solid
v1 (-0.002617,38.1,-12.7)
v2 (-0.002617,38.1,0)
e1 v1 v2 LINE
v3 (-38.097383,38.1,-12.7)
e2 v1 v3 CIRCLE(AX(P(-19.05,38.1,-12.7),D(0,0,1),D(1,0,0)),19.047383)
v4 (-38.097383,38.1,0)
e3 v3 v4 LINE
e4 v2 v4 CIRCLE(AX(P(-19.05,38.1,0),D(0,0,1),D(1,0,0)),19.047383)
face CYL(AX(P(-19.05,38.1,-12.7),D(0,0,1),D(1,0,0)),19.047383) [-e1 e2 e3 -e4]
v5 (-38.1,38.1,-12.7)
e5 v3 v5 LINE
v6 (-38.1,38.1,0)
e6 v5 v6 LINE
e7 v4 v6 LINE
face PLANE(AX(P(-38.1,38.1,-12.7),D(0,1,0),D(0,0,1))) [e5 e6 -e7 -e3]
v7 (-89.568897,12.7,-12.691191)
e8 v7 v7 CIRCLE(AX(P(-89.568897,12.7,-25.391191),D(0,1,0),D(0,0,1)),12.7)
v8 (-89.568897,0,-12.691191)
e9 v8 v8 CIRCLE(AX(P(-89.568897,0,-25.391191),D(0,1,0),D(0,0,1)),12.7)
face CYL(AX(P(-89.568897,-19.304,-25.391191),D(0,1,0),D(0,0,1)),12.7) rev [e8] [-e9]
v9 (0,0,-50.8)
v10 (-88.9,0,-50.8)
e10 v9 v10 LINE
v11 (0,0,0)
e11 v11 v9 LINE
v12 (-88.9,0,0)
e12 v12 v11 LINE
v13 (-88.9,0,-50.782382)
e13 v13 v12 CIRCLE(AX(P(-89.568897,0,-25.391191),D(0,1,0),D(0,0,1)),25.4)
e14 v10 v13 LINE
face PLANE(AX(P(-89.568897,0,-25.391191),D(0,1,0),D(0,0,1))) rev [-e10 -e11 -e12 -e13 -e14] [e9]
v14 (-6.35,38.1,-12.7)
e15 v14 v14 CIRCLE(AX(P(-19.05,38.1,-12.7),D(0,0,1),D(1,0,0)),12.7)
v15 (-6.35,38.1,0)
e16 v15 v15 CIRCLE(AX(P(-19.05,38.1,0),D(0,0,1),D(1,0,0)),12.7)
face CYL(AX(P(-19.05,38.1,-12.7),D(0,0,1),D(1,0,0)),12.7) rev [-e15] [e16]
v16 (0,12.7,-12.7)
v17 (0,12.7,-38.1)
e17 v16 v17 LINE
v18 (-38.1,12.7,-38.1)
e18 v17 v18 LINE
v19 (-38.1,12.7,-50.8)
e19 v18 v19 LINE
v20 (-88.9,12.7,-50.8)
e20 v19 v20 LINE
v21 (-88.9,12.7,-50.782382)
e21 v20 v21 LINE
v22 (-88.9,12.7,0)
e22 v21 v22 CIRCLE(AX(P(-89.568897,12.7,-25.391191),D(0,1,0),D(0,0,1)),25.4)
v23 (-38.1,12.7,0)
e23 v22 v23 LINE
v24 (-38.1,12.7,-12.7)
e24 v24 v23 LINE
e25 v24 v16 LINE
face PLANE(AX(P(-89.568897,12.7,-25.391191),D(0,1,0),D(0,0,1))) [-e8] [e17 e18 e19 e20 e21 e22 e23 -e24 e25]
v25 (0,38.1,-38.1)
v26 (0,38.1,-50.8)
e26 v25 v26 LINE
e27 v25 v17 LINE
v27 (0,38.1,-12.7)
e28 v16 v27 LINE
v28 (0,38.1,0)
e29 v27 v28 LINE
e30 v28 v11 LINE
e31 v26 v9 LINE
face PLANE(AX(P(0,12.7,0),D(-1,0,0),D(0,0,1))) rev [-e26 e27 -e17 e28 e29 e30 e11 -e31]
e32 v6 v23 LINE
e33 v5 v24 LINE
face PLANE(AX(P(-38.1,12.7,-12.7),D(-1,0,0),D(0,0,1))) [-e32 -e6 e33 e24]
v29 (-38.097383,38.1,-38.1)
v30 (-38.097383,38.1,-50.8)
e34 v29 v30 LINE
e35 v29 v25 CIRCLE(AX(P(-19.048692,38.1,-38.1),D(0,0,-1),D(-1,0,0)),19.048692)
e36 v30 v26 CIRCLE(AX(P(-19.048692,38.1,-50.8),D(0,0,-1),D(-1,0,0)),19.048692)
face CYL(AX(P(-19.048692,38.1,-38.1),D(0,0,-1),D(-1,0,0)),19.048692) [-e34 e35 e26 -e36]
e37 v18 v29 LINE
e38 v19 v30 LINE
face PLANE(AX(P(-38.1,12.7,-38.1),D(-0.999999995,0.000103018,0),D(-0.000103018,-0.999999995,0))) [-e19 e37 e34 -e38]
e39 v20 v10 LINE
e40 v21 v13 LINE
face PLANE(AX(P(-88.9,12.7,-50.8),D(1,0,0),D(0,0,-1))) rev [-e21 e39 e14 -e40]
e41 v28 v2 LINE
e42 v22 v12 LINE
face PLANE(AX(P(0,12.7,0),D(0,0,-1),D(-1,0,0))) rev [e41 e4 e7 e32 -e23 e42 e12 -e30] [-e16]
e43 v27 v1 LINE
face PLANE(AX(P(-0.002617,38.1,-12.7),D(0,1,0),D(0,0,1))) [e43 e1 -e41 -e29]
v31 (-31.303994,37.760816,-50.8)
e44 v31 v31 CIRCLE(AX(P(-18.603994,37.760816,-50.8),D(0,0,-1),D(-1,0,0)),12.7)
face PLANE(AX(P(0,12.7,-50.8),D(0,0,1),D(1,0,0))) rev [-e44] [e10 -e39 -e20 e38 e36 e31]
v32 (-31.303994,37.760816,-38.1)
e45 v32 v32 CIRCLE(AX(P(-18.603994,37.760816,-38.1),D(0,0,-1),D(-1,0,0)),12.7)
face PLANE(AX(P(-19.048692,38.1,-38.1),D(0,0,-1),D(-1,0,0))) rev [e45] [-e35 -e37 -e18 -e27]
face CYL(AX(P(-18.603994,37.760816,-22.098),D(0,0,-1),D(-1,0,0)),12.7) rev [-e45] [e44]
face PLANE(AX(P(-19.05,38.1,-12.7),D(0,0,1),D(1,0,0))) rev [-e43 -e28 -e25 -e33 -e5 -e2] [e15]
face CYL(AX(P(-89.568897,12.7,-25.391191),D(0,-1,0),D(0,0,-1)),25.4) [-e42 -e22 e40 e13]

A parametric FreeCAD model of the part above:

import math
import FreeCAD as App
import Part
import Sketcher

V = App.Vector
Q = App.Units.Quantity

doc = App.newDocument("Part")
params = doc.addObject("Spreadsheet::Sheet", "Params")
for row, (alias, value) in enumerate([
    ("sketch1_radius", "1 in"),
    ("sketch1_height", "2 in"),
    ("sketch1_width", "3.5 in"),
    ("pad1_length", "0.5 in"),
    ("sketch2_height", "1 in"),
    ("sketch2_width", "1.5 in"),
    ("pad2_length", "0.5 in"),
    ("sketch3_diameter", "1 in"),
    ("pocket1_length", "0.5 in"),
    ("sketch4_height", "1 in"),
    ("sketch4_width", "1.5 in"),
    ("pad3_length", "0.5 in"),
    ("sketch5_diameter", "1 in"),
    ("pocket2_length", "1.13 in"),
    ("sketch6_diameter", "1 in"),
    ("pocket3_length", "1.26 in"),
], start=1):
    params.set(f"A{row}", alias)
    params.set(f"B{row}", "=" + value)
    params.setAlias(f"B{row}", alias)

body = doc.addObject("PartDesign::Body", "Body")

sketch1 = doc.addObject("Sketcher::SketchObject", "Sketch")
body.addObject(sketch1)
sketch1.AttachmentSupport = (doc.XZ_Plane, [""])
sketch1.MapMode = "FlatFace"
sketch1.addGeometry(Part.LineSegment(V(0, 0, 0), V(0, -50.8, 0)), False)
sketch1.addGeometry(Part.LineSegment(V(0, -50.8, 0), V(-88.9, -50.8, 0)), False)
sketch1.addGeometry(Part.LineSegment(V(-88.9, -50.8, 0), V(-88.9, -50.782382, 0)), False)
sketch1.addGeometry(Part.ArcOfCircle(Part.Circle(V(-89.568897, -25.391191, 0), V(0, 0, 1), 25.4), math.radians(88.490969), math.radians(271.509031)), False)
sketch1.addGeometry(Part.LineSegment(V(-88.9, 0, 0), V(0, 0, 0)), False)
sketch1.addConstraint(Sketcher.Constraint("Coincident", 0, 2, 1, 1))
sketch1.addConstraint(Sketcher.Constraint("Coincident", 1, 2, 2, 1))
sketch1.addConstraint(Sketcher.Constraint("Coincident", 2, 2, 3, 2))
sketch1.addConstraint(Sketcher.Constraint("Coincident", 3, 1, 4, 1))
sketch1.addConstraint(Sketcher.Constraint("Coincident", 4, 2, 0, 1))
sketch1.addConstraint(Sketcher.Constraint("Vertical", 0))
sketch1.addConstraint(Sketcher.Constraint("Horizontal", 1))
sketch1.addConstraint(Sketcher.Constraint("Vertical", 2))
sketch1.addConstraint(Sketcher.Constraint("Horizontal", 4))
sketch1.addConstraint(Sketcher.Constraint("Coincident", 4, 2, -1, 1))
sketch1.addConstraint(Sketcher.Constraint("Vertical", 2, 2, 3, 1))
sketch1.addConstraint(Sketcher.Constraint("Radius", 3, Q("1 in")))
sketch1.addConstraint(Sketcher.Constraint("DistanceY", 0, 2, 0, 1, Q("2 in")))
sketch1.addConstraint(Sketcher.Constraint("DistanceX", 1, 2, 1, 1, Q("3.5 in")))
sketch1.addConstraint(Sketcher.Constraint("DistanceY", 2, 1, 2, 2, 0.017618))
sketch1.setExpression("Constraints[11]", "Params.sketch1_radius")
sketch1.setExpression("Constraints[12]", "Params.sketch1_height")
sketch1.setExpression("Constraints[13]", "Params.sketch1_width")
pad1 = doc.addObject("PartDesign::Pad", "Pad")
body.addObject(pad1)
pad1.Profile = sketch1
pad1.setExpression("Length", "Params.pad1_length")
pad1.Reversed = True

sketch2 = doc.addObject("Sketcher::SketchObject", "Sketch001")
body.addObject(sketch2)
sketch2.AttachmentSupport = (doc.XY_Plane, [""])
sketch2.MapMode = "FlatFace"
sketch2.addGeometry(Part.LineSegment(V(0, 12.7, 0), V(0, 38.1, 0)), False)
sketch2.addGeometry(Part.LineSegment(V(0, 38.1, 0), V(-0.002617, 38.1, 0)), False)
sketch2.addGeometry(Part.ArcOfCircle(Part.Circle(V(-19.05, 38.1, 0), V(0, 0, 1), 19.047383), math.radians(0), math.radians(180)), False)
sketch2.addGeometry(Part.LineSegment(V(-38.097383, 38.1, 0), V(-38.1, 38.1, 0)), False)
sketch2.addGeometry(Part.LineSegment(V(-38.1, 38.1, 0), V(-38.1, 12.7, 0)), False)
sketch2.addGeometry(Part.LineSegment(V(-38.1, 12.7, 0), V(0, 12.7, 0)), False)
sketch2.addConstraint(Sketcher.Constraint("Coincident", 0, 2, 1, 1))
sketch2.addConstraint(Sketcher.Constraint("Coincident", 1, 2, 2, 1))
sketch2.addConstraint(Sketcher.Constraint("Coincident", 2, 2, 3, 1))
sketch2.addConstraint(Sketcher.Constraint("Coincident", 3, 2, 4, 1))
sketch2.addConstraint(Sketcher.Constraint("Coincident", 4, 2, 5, 1))
sketch2.addConstraint(Sketcher.Constraint("Coincident", 5, 2, 0, 1))
sketch2.addConstraint(Sketcher.Constraint("Vertical", 0))
sketch2.addConstraint(Sketcher.Constraint("Horizontal", 1))
sketch2.addConstraint(Sketcher.Constraint("Horizontal", 3))
sketch2.addConstraint(Sketcher.Constraint("Vertical", 4))
sketch2.addConstraint(Sketcher.Constraint("Horizontal", 5))
sketch2.addConstraint(Sketcher.Constraint("PointOnObject", 0, 2, -2))
sketch2.addConstraint(Sketcher.Constraint("Horizontal", 2, 3, 0, 2))
sketch2.addConstraint(Sketcher.Constraint("Horizontal", 1, 2, 2, 2))
sketch2.addConstraint(Sketcher.Constraint("Equal", 1, 3))
sketch2.addConstraint(Sketcher.Constraint("DistanceY", 0, 1, 0, 2, Q("1 in")))
sketch2.addConstraint(Sketcher.Constraint("DistanceX", 5, 1, 5, 2, Q("1.5 in")))
sketch2.addConstraint(Sketcher.Constraint("DistanceY", -1, 1, 2, 3, Q("1.5 in")))
sketch2.addConstraint(Sketcher.Constraint("Radius", 2, 19.047383))
sketch2.setExpression("Constraints[15]", "Params.sketch2_height")
sketch2.setExpression("Constraints[16]", "Params.sketch2_width")
pad2 = doc.addObject("PartDesign::Pad", "Pad001")
body.addObject(pad2)
pad2.Profile = sketch2
pad2.setExpression("Length", "Params.pad2_length")
pad2.Reversed = True

sketch3 = doc.addObject("Sketcher::SketchObject", "Sketch002")
body.addObject(sketch3)
sketch3.AttachmentSupport = (doc.XY_Plane, [""])
sketch3.MapMode = "FlatFace"
sketch3.addGeometry(Part.Circle(V(-19.05, 38.1, 0), V(0, 0, 1), 12.7), False)
sketch3.addConstraint(Sketcher.Constraint("Diameter", 0, Q("1 in")))
sketch3.addConstraint(Sketcher.Constraint("DistanceY", -1, 1, 0, 3, Q("1.5 in")))
sketch3.addConstraint(Sketcher.Constraint("DistanceX", 0, 3, -1, 1, Q("0.75 in")))
sketch3.setExpression("Constraints[0]", "Params.sketch3_diameter")
pocket1 = doc.addObject("PartDesign::Pocket", "Pocket")
body.addObject(pocket1)
pocket1.Profile = sketch3
pocket1.setExpression("Length", "Params.pocket1_length")

sketch4 = doc.addObject("Sketcher::SketchObject", "Sketch003")
body.addObject(sketch4)
sketch4.AttachmentSupport = (doc.XY_Plane, [""])
sketch4.MapMode = "FlatFace"
sketch4.AttachmentOffset = App.Placement(V(0, 0, -2 * 25.4), App.Rotation())
sketch4.addGeometry(Part.LineSegment(V(-38.1, 12.7, 0), V(-38.097383, 38.1, 0)), False)
sketch4.addGeometry(Part.ArcOfCircle(Part.Circle(V(-19.048692, 38.1, 0), V(0, 0, 1), 19.048692), math.radians(0), math.radians(180)), False)
sketch4.addGeometry(Part.LineSegment(V(0, 38.1, 0), V(0, 12.7, 0)), False)
sketch4.addGeometry(Part.LineSegment(V(0, 12.7, 0), V(-38.1, 12.7, 0)), False)
sketch4.addConstraint(Sketcher.Constraint("Coincident", 0, 2, 1, 2))
sketch4.addConstraint(Sketcher.Constraint("Tangent", 1, 1, 2, 1))
sketch4.addConstraint(Sketcher.Constraint("Coincident", 2, 2, 3, 1))
sketch4.addConstraint(Sketcher.Constraint("Coincident", 3, 2, 0, 1))
sketch4.addConstraint(Sketcher.Constraint("Vertical", 2))
sketch4.addConstraint(Sketcher.Constraint("Horizontal", 3))
sketch4.addConstraint(Sketcher.Constraint("PointOnObject", 1, 1, -2))
sketch4.addConstraint(Sketcher.Constraint("Horizontal", 1, 3, 0, 2))
sketch4.addConstraint(Sketcher.Constraint("DistanceY", 2, 2, 2, 1, Q("1 in")))
sketch4.addConstraint(Sketcher.Constraint("DistanceX", 3, 2, 3, 1, Q("1.5 in")))
sketch4.addConstraint(Sketcher.Constraint("DistanceY", -1, 1, 1, 3, Q("1.5 in")))
sketch4.addConstraint(Sketcher.Constraint("Radius", 1, 19.048692))
sketch4.setExpression("Constraints[8]", "Params.sketch4_height")
sketch4.setExpression("Constraints[9]", "Params.sketch4_width")
pad3 = doc.addObject("PartDesign::Pad", "Pad002")
body.addObject(pad3)
pad3.Profile = sketch4
pad3.setExpression("Length", "Params.pad3_length")

sketch5 = doc.addObject("Sketcher::SketchObject", "Sketch004")
body.addObject(sketch5)
sketch5.AttachmentSupport = (doc.XY_Plane, [""])
sketch5.MapMode = "FlatFace"
sketch5.AttachmentOffset = App.Placement(V(0, 0, -2 * 25.4), App.Rotation())
sketch5.addGeometry(Part.Circle(V(-18.603994, 37.760816, 0), V(0, 0, 1), 12.7), False)
sketch5.addConstraint(Sketcher.Constraint("Diameter", 0, Q("1 in")))
sketch5.addConstraint(Sketcher.Constraint("DistanceX", 0, 3, -1, 1, 18.603994))
sketch5.addConstraint(Sketcher.Constraint("DistanceY", -1, 1, 0, 3, 37.760816))
sketch5.setExpression("Constraints[0]", "Params.sketch5_diameter")
pocket2 = doc.addObject("PartDesign::Pocket", "Pocket001")
body.addObject(pocket2)
pocket2.Profile = sketch5
pocket2.setExpression("Length", "Params.pocket2_length")
pocket2.Reversed = True

sketch6 = doc.addObject("Sketcher::SketchObject", "Sketch005")
body.addObject(sketch6)
sketch6.AttachmentSupport = (doc.XZ_Plane, [""])
sketch6.MapMode = "FlatFace"
sketch6.AttachmentOffset = App.Placement(V(0, 0, -0.5 * 25.4), App.Rotation())
sketch6.addGeometry(Part.Circle(V(-89.568897, -25.391191, 0), V(0, 0, 1), 12.7), False)
sketch6.addConstraint(Sketcher.Constraint("Diameter", 0, Q("1 in")))
sketch6.addConstraint(Sketcher.Constraint("DistanceY", 0, 3, -1, 1, 25.391191))
sketch6.addConstraint(Sketcher.Constraint("DistanceX", 0, 3, -1, 1, 89.568897))
sketch6.setExpression("Constraints[0]", "Params.sketch6_diameter")
pocket3 = doc.addObject("PartDesign::Pocket", "Pocket002")
body.addObject(pocket3)
pocket3.Profile = sketch6
pocket3.setExpression("Length", "Params.pocket3_length")
pocket3.Reversed = True

doc.recompute()
